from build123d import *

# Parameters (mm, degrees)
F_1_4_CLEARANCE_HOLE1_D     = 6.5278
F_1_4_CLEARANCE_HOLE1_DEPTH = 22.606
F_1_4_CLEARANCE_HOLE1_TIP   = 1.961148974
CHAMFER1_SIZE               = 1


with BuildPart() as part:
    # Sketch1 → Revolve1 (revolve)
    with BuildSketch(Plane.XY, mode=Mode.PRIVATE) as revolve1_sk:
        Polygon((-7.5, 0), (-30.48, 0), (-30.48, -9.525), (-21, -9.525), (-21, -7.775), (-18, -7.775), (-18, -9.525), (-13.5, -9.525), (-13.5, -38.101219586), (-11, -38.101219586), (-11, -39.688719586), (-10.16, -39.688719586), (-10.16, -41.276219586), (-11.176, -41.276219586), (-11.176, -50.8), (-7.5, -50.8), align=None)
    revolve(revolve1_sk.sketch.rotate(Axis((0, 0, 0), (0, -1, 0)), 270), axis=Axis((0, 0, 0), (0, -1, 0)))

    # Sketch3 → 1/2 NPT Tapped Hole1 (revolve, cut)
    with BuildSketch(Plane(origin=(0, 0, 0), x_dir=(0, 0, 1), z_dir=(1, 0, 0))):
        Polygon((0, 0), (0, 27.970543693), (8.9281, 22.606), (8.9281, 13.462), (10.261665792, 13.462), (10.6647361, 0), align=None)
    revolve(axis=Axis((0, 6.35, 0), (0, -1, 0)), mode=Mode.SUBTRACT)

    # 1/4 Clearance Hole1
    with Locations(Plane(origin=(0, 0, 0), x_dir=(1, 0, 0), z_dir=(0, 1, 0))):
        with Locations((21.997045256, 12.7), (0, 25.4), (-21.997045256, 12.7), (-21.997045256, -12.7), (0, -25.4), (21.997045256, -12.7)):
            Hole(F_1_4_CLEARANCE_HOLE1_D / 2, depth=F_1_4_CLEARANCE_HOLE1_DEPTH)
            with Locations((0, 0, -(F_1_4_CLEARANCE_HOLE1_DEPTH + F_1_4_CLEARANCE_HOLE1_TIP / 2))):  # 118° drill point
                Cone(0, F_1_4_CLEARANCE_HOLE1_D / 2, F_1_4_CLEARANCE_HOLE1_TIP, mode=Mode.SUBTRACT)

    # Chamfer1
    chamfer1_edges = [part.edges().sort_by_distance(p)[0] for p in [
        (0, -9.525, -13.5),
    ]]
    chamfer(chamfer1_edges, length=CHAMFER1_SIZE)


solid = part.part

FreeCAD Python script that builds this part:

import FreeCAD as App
import Part
import Sketcher

V = App.Vector
Q = App.Units.Quantity


def edges_at(feature, points):
    """Names of the edges that pass closest to the given points."""
    edges = feature.Shape.Edges
    near = lambda p: min(range(len(edges)), key=lambda i: edges[i].distToShape(Part.Vertex(*p))[0])
    return sorted({f"Edge{near(p) + 1}" for p in points})

doc = App.newDocument("Part")
params = doc.addObject("Spreadsheet::Sheet", "Params")
for row, (alias, value) in enumerate([
    ("sketch1_height", "2 in"),
    ("sketch1_width", "0.04 in"),
    ("sketch1_height2", "0.375 in"),
    ("sketch1_height3", "0.0625 in"),
    ("revolution_angle", "360 deg"),
    ("sketch2_width", "0.36 in"),
    ("groove_angle", "360 deg"),
    ("sketch3_diameter", "0.257 in"),
    ("hole_diameter", "0.257 in"),
    ("hole_depth", "0.89 in"),
    ("chamfer_size", "1 mm"),
], start=1):
    params.set(f"A{row}", alias)
    params.set(f"B{row}", "=" + value)
    params.setAlias(f"B{row}", alias)

body = doc.addObject("PartDesign::Body", "Body")

# Sketch on XY plane
sketch1 = body.newObject("Sketcher::SketchObject", "Sketch")
sketch1.AttachmentSupport = (doc.getObject("XY_Plane"), [""])
sketch1.MapMode = "FlatFace"
sketch1.addGeometry(Part.LineSegment(V(-7.5, 0, 0), V(-30.5, 0, 0)), False)
sketch1.addGeometry(Part.LineSegment(V(-30.5, 0, 0), V(-30.5, -9.5, 0)), False)
sketch1.addGeometry(Part.LineSegment(V(-30.5, -9.5, 0), V(-21, -9.5, 0)), False)
sketch1.addGeometry(Part.LineSegment(V(-21, -9.5, 0), V(-21, -7.8, 0)), False)
sketch1.addGeometry(Part.LineSegment(V(-21, -7.8, 0), V(-18, -7.8, 0)), False)
sketch1.addGeometry(Part.LineSegment(V(-18, -7.8, 0), V(-18, -9.5, 0)), False)
sketch1.addGeometry(Part.LineSegment(V(-18, -9.5, 0), V(-13.5, -9.5, 0)), False)
sketch1.addGeometry(Part.LineSegment(V(-13.5, -9.5, 0), V(-13.5, -38.1, 0)), False)
sketch1.addGeometry(Part.LineSegment(V(-13.5, -38.1, 0), V(-11, -38.1, 0)), False)
sketch1.addGeometry(Part.LineSegment(V(-11, -38.1, 0), V(-11, -39.7, 0)), False)
sketch1.addGeometry(Part.LineSegment(V(-11, -39.7, 0), V(-10.2, -39.7, 0)), False)
sketch1.addGeometry(Part.LineSegment(V(-10.2, -39.7, 0), V(-10.2, -41.3, 0)), False)
sketch1.addGeometry(Part.LineSegment(V(-10.2, -41.3, 0), V(-11.2, -41.3, 0)), False)
sketch1.addGeometry(Part.LineSegment(V(-11.2, -41.3, 0), V(-11.2, -50.8, 0)), False)
sketch1.addGeometry(Part.LineSegment(V(-11.2, -50.8, 0), V(-7.5, -50.8, 0)), False)
sketch1.addGeometry(Part.LineSegment(V(-7.5, -50.8, 0), V(-7.5, 0, 0)), False)
sketch1.addConstraint(Sketcher.Constraint("Coincident", 0, 2, 1, 1))
sketch1.addConstraint(Sketcher.Constraint("Coincident", 1, 2, 2, 1))
sketch1.addConstraint(Sketcher.Constraint("Coincident", 2, 2, 3, 1))
sketch1.addConstraint(Sketcher.Constraint("Coincident", 3, 2, 4, 1))
sketch1.addConstraint(Sketcher.Constraint("Coincident", 4, 2, 5, 1))
sketch1.addConstraint(Sketcher.Constraint("Coincident", 5, 2, 6, 1))
sketch1.addConstraint(Sketcher.Constraint("Coincident", 6, 2, 7, 1))
sketch1.addConstraint(Sketcher.Constraint("Coincident", 7, 2, 8, 1))
sketch1.addConstraint(Sketcher.Constraint("Coincident", 8, 2, 9, 1))
sketch1.addConstraint(Sketcher.Constraint("Coincident", 9, 2, 10, 1))
sketch1.addConstraint(Sketcher.Constraint("Coincident", 10, 2, 11, 1))
sketch1.addConstraint(Sketcher.Constraint("Coincident", 11, 2, 12, 1))
sketch1.addConstraint(Sketcher.Constraint("Coincident", 12, 2, 13, 1))
sketch1.addConstraint(Sketcher.Constraint("Coincident", 13, 2, 14, 1))
sketch1.addConstraint(Sketcher.Constraint("Coincident", 14, 2, 15, 1))
sketch1.addConstraint(Sketcher.Constraint("Coincident", 15, 2, 0, 1))
sketch1.addConstraint(Sketcher.Constraint("Horizontal", 0))
sketch1.addConstraint(Sketcher.Constraint("Vertical", 1))
sketch1.addConstraint(Sketcher.Constraint("Horizontal", 2))
sketch1.addConstraint(Sketcher.Constraint("Vertical", 3))
sketch1.addConstraint(Sketcher.Constraint("Horizontal", 4))
sketch1.addConstraint(Sketcher.Constraint("Vertical", 5))
sketch1.addConstraint(Sketcher.Constraint("Horizontal", 6))
sketch1.addConstraint(Sketcher.Constraint("Vertical", 7))
sketch1.addConstraint(Sketcher.Constraint("Horizontal", 8))
sketch1.addConstraint(Sketcher.Constraint("Vertical", 9))
sketch1.addConstraint(Sketcher.Constraint("Horizontal", 10))
sketch1.addConstraint(Sketcher.Constraint("Vertical", 11))
sketch1.addConstraint(Sketcher.Constraint("Horizontal", 12))
sketch1.addConstraint(Sketcher.Constraint("Vertical", 13))
sketch1.addConstraint(Sketcher.Constraint("Horizontal", 14))
sketch1.addConstraint(Sketcher.Constraint("Vertical", 15))
sketch1.addConstraint(Sketcher.Constraint("PointOnObject", 0, 2, -1))
sketch1.addConstraint(Sketcher.Constraint("Horizontal", 2, 2, 5, 2))
sketch1.addConstraint(Sketcher.Constraint("Equal", 9, 11))
sketch1.addConstraint(Sketcher.Constraint("DistanceY", 15, 1, 15, 2, Q("2 in")))
sketch1.addConstraint(Sketcher.Constraint("DistanceX", 12, 2, 12, 1, Q("0.04 in")))
sketch1.addConstraint(Sketcher.Constraint("DistanceX", 0, 2, -1, 1, Q("1.2 in")))
sketch1.addConstraint(Sketcher.Constraint("DistanceX", 10, 2, -1, 1, Q("0.4 in")))
sketch1.addConstraint(Sketcher.Constraint("DistanceY", 1, 2, 1, 1, Q("0.375 in")))
sketch1.addConstraint(Sketcher.Constraint("DistanceY", 9, 2, 9, 1, Q("0.0625 in")))
sketch1.addConstraint(Sketcher.Constraint("DistanceX", 0, 2, 0, 1, Q("22.98 mm")))
sketch1.addConstraint(Sketcher.Constraint("DistanceX", 2, 1, 2, 2, Q("9.48 mm")))
sketch1.addConstraint(Sketcher.Constraint("DistanceX", 4, 1, 4, 2, Q("3 mm")))
sketch1.addConstraint(Sketcher.Constraint("DistanceX", 6, 1, 6, 2, Q("4.5 mm")))
sketch1.addConstraint(Sketcher.Constraint("DistanceX", 8, 1, 8, 2, Q("2.5 mm")))
sketch1.addConstraint(Sketcher.Constraint("DistanceY", 3, 1, 3, 2, Q("1.75 mm")))
sketch1.addConstraint(Sketcher.Constraint("DistanceY", 7, 2, 7, 1, Q("28.57622 mm")))
sketch1.setExpression("Constraints[35]", "Params.sketch1_height")
sketch1.setExpression("Constraints[36]", "Params.sketch1_width")
sketch1.setExpression("Constraints[39]", "Params.sketch1_height2")
sketch1.setExpression("Constraints[40]", "Params.sketch1_height3")
revolution = body.newObject("PartDesign::Revolution", "Revolution")
revolution.Profile = sketch1
revolution.ReferenceAxis = (sketch1, ["V_Axis"])
revolution.setExpression("Angle", "Params.revolution_angle")

# Sketch on YZ plane
sketch2 = body.newObject("Sketcher::SketchObject", "Sketch001")
sketch2.AttachmentSupport = (doc.getObject("YZ_Plane"), [""])
sketch2.MapMode = "FlatFace"
sketch2.addGeometry(Part.LineSegment(V(-28, 0, 0), V(0, 0, 0)), False)
sketch2.addGeometry(Part.LineSegment(V(0, 0, 0), V(0, 10.7, 0)), False)
sketch2.addGeometry(Part.LineSegment(V(0, 10.7, 0), V(-13.5, 10.3, 0)), False)
sketch2.addGeometry(Part.LineSegment(V(-13.5, 10.3, 0), V(-13.5, 8.9, 0)), False)
sketch2.addGeometry(Part.LineSegment(V(-13.5, 8.9, 0), V(-22.6, 8.9, 0)), False)
sketch2.addGeometry(Part.LineSegment(V(-22.6, 8.9, 0), V(-28, 0, 0)), False)
sketch2.addConstraint(Sketcher.Constraint("Coincident", 0, 2, 1, 1))
sketch2.addConstraint(Sketcher.Constraint("Coincident", 1, 2, 2, 1))
sketch2.addConstraint(Sketcher.Constraint("Coincident", 2, 2, 3, 1))
sketch2.addConstraint(Sketcher.Constraint("Coincident", 3, 2, 4, 1))
sketch2.addConstraint(Sketcher.Constraint("Coincident", 4, 2, 5, 1))
sketch2.addConstraint(Sketcher.Constraint("Coincident", 5, 2, 0, 1))
sketch2.addConstraint(Sketcher.Constraint("Horizontal", 0))
sketch2.addConstraint(Sketcher.Constraint("Vertical", 1))
sketch2.addConstraint(Sketcher.Constraint("Vertical", 3))
sketch2.addConstraint(Sketcher.Constraint("Horizontal", 4))
sketch2.addConstraint(Sketcher.Constraint("Coincident", 0, 2, -1, 1))
sketch2.addConstraint(Sketcher.Constraint("Angle", 5, Q("-121 deg")))
sketch2.addConstraint(Sketcher.Constraint("DistanceX", 4, 2, 4, 1, Q("0.36 in")))
sketch2.addConstraint(Sketcher.Constraint("DistanceX", 2, 2, -1, 1, Q("0.53 in")))
sketch2.addConstraint(Sketcher.Constraint("DistanceY", -1, 1, 3, 2, Q("0.3515 in")))
sketch2.addConstraint(Sketcher.Constraint("DistanceY", 1, 1, 1, 2, Q("10.664736 mm")))
sketch2.addConstraint(Sketcher.Constraint("DistanceY", 3, 2, 3, 1, Q("1.333566 mm")))
sketch2.setExpression("Constraints[12]", "Params.sketch2_width")
groove = body.newObject("PartDesign::Groove", "Groove")
groove.Profile = sketch2
groove.ReferenceAxis = (sketch2, ["H_Axis"])
groove.setExpression("Angle", "Params.groove_angle")

# Sketch on XZ plane
sketch3 = body.newObject("Sketcher::SketchObject", "Sketch002")
sketch3.AttachmentSupport = (doc.getObject("XZ_Plane"), [""])
sketch3.MapMode = "FlatFace"
sketch3.addGeometry(Part.Circle(V(22, -12.7, 0), V(0, 0, 1), 3.3), False)
sketch3.addGeometry(Part.Circle(V(0, -25.4, 0), V(0, 0, 1), 3.3), False)
sketch3.addGeometry(Part.Circle(V(-22, -12.7, 0), V(0, 0, 1), 3.3), False)
sketch3.addGeometry(Part.Circle(V(-22, 12.7, 0), V(0, 0, 1), 3.3), False)
sketch3.addGeometry(Part.Circle(V(0, 25.4, 0), V(0, 0, 1), 3.3), False)
sketch3.addGeometry(Part.Circle(V(22, 12.7, 0), V(0, 0, 1), 3.3), False)
sketch3.addConstraint(Sketcher.Constraint("Equal", 0, 1))
sketch3.addConstraint(Sketcher.Constraint("Equal", 1, 2))
sketch3.addConstraint(Sketcher.Constraint("Equal", 2, 3))
sketch3.addConstraint(Sketcher.Constraint("Equal", 3, 4))
sketch3.addConstraint(Sketcher.Constraint("Equal", 4, 5))
sketch3.addConstraint(Sketcher.Constraint("Symmetric", 0, 3, 3, 3, -1, 1))
sketch3.addConstraint(Sketcher.Constraint("Symmetric", 1, 3, 4, 3, -1, 1))
sketch3.addConstraint(Sketcher.Constraint("Symmetric", 2, 3, 5, 3, -1, 1))
sketch3.addConstraint(Sketcher.Constraint("Symmetric", 0, 3, 2, 3, -2))
sketch3.addConstraint(Sketcher.Constraint("PointOnObject", 1, 3, -2))
sketch3.addConstraint(Sketcher.Constraint("Diameter", 0, Q("0.257 in")))
sketch3.addConstraint(Sketcher.Constraint("DistanceY", 1, 3, -1, 1, Q("1 in")))
sketch3.addConstraint(Sketcher.Constraint("DistanceY", 2, 3, 3, 3, Q("1 in")))
sketch3.addConstraint(Sketcher.Constraint("DistanceX", 2, 3, 0, 3, Q("43.994091 mm")))
sketch3.setExpression("Constraints[10]", "Params.sketch3_diameter")
doc.recompute()
hole = body.newObject("PartDesign::Hole", "Hole")
hole.Profile = sketch3
hole.ThreadType = "None"
hole.setExpression("Diameter", "Params.hole_diameter")
hole.DepthType = "Dimension"
hole.setExpression("Depth", "Params.hole_depth")
hole.DrillPoint = "Angled"
hole.DrillPointAngle = 118
hole.Reversed = True
doc.recompute()

chamfer = body.newObject("PartDesign::Chamfer", "Chamfer")
chamfer.Base = (hole, edges_at(hole, [(0, -9.525, -13.5)]))
chamfer.setExpression("Size", "Params.chamfer_size")

doc.recompute()
